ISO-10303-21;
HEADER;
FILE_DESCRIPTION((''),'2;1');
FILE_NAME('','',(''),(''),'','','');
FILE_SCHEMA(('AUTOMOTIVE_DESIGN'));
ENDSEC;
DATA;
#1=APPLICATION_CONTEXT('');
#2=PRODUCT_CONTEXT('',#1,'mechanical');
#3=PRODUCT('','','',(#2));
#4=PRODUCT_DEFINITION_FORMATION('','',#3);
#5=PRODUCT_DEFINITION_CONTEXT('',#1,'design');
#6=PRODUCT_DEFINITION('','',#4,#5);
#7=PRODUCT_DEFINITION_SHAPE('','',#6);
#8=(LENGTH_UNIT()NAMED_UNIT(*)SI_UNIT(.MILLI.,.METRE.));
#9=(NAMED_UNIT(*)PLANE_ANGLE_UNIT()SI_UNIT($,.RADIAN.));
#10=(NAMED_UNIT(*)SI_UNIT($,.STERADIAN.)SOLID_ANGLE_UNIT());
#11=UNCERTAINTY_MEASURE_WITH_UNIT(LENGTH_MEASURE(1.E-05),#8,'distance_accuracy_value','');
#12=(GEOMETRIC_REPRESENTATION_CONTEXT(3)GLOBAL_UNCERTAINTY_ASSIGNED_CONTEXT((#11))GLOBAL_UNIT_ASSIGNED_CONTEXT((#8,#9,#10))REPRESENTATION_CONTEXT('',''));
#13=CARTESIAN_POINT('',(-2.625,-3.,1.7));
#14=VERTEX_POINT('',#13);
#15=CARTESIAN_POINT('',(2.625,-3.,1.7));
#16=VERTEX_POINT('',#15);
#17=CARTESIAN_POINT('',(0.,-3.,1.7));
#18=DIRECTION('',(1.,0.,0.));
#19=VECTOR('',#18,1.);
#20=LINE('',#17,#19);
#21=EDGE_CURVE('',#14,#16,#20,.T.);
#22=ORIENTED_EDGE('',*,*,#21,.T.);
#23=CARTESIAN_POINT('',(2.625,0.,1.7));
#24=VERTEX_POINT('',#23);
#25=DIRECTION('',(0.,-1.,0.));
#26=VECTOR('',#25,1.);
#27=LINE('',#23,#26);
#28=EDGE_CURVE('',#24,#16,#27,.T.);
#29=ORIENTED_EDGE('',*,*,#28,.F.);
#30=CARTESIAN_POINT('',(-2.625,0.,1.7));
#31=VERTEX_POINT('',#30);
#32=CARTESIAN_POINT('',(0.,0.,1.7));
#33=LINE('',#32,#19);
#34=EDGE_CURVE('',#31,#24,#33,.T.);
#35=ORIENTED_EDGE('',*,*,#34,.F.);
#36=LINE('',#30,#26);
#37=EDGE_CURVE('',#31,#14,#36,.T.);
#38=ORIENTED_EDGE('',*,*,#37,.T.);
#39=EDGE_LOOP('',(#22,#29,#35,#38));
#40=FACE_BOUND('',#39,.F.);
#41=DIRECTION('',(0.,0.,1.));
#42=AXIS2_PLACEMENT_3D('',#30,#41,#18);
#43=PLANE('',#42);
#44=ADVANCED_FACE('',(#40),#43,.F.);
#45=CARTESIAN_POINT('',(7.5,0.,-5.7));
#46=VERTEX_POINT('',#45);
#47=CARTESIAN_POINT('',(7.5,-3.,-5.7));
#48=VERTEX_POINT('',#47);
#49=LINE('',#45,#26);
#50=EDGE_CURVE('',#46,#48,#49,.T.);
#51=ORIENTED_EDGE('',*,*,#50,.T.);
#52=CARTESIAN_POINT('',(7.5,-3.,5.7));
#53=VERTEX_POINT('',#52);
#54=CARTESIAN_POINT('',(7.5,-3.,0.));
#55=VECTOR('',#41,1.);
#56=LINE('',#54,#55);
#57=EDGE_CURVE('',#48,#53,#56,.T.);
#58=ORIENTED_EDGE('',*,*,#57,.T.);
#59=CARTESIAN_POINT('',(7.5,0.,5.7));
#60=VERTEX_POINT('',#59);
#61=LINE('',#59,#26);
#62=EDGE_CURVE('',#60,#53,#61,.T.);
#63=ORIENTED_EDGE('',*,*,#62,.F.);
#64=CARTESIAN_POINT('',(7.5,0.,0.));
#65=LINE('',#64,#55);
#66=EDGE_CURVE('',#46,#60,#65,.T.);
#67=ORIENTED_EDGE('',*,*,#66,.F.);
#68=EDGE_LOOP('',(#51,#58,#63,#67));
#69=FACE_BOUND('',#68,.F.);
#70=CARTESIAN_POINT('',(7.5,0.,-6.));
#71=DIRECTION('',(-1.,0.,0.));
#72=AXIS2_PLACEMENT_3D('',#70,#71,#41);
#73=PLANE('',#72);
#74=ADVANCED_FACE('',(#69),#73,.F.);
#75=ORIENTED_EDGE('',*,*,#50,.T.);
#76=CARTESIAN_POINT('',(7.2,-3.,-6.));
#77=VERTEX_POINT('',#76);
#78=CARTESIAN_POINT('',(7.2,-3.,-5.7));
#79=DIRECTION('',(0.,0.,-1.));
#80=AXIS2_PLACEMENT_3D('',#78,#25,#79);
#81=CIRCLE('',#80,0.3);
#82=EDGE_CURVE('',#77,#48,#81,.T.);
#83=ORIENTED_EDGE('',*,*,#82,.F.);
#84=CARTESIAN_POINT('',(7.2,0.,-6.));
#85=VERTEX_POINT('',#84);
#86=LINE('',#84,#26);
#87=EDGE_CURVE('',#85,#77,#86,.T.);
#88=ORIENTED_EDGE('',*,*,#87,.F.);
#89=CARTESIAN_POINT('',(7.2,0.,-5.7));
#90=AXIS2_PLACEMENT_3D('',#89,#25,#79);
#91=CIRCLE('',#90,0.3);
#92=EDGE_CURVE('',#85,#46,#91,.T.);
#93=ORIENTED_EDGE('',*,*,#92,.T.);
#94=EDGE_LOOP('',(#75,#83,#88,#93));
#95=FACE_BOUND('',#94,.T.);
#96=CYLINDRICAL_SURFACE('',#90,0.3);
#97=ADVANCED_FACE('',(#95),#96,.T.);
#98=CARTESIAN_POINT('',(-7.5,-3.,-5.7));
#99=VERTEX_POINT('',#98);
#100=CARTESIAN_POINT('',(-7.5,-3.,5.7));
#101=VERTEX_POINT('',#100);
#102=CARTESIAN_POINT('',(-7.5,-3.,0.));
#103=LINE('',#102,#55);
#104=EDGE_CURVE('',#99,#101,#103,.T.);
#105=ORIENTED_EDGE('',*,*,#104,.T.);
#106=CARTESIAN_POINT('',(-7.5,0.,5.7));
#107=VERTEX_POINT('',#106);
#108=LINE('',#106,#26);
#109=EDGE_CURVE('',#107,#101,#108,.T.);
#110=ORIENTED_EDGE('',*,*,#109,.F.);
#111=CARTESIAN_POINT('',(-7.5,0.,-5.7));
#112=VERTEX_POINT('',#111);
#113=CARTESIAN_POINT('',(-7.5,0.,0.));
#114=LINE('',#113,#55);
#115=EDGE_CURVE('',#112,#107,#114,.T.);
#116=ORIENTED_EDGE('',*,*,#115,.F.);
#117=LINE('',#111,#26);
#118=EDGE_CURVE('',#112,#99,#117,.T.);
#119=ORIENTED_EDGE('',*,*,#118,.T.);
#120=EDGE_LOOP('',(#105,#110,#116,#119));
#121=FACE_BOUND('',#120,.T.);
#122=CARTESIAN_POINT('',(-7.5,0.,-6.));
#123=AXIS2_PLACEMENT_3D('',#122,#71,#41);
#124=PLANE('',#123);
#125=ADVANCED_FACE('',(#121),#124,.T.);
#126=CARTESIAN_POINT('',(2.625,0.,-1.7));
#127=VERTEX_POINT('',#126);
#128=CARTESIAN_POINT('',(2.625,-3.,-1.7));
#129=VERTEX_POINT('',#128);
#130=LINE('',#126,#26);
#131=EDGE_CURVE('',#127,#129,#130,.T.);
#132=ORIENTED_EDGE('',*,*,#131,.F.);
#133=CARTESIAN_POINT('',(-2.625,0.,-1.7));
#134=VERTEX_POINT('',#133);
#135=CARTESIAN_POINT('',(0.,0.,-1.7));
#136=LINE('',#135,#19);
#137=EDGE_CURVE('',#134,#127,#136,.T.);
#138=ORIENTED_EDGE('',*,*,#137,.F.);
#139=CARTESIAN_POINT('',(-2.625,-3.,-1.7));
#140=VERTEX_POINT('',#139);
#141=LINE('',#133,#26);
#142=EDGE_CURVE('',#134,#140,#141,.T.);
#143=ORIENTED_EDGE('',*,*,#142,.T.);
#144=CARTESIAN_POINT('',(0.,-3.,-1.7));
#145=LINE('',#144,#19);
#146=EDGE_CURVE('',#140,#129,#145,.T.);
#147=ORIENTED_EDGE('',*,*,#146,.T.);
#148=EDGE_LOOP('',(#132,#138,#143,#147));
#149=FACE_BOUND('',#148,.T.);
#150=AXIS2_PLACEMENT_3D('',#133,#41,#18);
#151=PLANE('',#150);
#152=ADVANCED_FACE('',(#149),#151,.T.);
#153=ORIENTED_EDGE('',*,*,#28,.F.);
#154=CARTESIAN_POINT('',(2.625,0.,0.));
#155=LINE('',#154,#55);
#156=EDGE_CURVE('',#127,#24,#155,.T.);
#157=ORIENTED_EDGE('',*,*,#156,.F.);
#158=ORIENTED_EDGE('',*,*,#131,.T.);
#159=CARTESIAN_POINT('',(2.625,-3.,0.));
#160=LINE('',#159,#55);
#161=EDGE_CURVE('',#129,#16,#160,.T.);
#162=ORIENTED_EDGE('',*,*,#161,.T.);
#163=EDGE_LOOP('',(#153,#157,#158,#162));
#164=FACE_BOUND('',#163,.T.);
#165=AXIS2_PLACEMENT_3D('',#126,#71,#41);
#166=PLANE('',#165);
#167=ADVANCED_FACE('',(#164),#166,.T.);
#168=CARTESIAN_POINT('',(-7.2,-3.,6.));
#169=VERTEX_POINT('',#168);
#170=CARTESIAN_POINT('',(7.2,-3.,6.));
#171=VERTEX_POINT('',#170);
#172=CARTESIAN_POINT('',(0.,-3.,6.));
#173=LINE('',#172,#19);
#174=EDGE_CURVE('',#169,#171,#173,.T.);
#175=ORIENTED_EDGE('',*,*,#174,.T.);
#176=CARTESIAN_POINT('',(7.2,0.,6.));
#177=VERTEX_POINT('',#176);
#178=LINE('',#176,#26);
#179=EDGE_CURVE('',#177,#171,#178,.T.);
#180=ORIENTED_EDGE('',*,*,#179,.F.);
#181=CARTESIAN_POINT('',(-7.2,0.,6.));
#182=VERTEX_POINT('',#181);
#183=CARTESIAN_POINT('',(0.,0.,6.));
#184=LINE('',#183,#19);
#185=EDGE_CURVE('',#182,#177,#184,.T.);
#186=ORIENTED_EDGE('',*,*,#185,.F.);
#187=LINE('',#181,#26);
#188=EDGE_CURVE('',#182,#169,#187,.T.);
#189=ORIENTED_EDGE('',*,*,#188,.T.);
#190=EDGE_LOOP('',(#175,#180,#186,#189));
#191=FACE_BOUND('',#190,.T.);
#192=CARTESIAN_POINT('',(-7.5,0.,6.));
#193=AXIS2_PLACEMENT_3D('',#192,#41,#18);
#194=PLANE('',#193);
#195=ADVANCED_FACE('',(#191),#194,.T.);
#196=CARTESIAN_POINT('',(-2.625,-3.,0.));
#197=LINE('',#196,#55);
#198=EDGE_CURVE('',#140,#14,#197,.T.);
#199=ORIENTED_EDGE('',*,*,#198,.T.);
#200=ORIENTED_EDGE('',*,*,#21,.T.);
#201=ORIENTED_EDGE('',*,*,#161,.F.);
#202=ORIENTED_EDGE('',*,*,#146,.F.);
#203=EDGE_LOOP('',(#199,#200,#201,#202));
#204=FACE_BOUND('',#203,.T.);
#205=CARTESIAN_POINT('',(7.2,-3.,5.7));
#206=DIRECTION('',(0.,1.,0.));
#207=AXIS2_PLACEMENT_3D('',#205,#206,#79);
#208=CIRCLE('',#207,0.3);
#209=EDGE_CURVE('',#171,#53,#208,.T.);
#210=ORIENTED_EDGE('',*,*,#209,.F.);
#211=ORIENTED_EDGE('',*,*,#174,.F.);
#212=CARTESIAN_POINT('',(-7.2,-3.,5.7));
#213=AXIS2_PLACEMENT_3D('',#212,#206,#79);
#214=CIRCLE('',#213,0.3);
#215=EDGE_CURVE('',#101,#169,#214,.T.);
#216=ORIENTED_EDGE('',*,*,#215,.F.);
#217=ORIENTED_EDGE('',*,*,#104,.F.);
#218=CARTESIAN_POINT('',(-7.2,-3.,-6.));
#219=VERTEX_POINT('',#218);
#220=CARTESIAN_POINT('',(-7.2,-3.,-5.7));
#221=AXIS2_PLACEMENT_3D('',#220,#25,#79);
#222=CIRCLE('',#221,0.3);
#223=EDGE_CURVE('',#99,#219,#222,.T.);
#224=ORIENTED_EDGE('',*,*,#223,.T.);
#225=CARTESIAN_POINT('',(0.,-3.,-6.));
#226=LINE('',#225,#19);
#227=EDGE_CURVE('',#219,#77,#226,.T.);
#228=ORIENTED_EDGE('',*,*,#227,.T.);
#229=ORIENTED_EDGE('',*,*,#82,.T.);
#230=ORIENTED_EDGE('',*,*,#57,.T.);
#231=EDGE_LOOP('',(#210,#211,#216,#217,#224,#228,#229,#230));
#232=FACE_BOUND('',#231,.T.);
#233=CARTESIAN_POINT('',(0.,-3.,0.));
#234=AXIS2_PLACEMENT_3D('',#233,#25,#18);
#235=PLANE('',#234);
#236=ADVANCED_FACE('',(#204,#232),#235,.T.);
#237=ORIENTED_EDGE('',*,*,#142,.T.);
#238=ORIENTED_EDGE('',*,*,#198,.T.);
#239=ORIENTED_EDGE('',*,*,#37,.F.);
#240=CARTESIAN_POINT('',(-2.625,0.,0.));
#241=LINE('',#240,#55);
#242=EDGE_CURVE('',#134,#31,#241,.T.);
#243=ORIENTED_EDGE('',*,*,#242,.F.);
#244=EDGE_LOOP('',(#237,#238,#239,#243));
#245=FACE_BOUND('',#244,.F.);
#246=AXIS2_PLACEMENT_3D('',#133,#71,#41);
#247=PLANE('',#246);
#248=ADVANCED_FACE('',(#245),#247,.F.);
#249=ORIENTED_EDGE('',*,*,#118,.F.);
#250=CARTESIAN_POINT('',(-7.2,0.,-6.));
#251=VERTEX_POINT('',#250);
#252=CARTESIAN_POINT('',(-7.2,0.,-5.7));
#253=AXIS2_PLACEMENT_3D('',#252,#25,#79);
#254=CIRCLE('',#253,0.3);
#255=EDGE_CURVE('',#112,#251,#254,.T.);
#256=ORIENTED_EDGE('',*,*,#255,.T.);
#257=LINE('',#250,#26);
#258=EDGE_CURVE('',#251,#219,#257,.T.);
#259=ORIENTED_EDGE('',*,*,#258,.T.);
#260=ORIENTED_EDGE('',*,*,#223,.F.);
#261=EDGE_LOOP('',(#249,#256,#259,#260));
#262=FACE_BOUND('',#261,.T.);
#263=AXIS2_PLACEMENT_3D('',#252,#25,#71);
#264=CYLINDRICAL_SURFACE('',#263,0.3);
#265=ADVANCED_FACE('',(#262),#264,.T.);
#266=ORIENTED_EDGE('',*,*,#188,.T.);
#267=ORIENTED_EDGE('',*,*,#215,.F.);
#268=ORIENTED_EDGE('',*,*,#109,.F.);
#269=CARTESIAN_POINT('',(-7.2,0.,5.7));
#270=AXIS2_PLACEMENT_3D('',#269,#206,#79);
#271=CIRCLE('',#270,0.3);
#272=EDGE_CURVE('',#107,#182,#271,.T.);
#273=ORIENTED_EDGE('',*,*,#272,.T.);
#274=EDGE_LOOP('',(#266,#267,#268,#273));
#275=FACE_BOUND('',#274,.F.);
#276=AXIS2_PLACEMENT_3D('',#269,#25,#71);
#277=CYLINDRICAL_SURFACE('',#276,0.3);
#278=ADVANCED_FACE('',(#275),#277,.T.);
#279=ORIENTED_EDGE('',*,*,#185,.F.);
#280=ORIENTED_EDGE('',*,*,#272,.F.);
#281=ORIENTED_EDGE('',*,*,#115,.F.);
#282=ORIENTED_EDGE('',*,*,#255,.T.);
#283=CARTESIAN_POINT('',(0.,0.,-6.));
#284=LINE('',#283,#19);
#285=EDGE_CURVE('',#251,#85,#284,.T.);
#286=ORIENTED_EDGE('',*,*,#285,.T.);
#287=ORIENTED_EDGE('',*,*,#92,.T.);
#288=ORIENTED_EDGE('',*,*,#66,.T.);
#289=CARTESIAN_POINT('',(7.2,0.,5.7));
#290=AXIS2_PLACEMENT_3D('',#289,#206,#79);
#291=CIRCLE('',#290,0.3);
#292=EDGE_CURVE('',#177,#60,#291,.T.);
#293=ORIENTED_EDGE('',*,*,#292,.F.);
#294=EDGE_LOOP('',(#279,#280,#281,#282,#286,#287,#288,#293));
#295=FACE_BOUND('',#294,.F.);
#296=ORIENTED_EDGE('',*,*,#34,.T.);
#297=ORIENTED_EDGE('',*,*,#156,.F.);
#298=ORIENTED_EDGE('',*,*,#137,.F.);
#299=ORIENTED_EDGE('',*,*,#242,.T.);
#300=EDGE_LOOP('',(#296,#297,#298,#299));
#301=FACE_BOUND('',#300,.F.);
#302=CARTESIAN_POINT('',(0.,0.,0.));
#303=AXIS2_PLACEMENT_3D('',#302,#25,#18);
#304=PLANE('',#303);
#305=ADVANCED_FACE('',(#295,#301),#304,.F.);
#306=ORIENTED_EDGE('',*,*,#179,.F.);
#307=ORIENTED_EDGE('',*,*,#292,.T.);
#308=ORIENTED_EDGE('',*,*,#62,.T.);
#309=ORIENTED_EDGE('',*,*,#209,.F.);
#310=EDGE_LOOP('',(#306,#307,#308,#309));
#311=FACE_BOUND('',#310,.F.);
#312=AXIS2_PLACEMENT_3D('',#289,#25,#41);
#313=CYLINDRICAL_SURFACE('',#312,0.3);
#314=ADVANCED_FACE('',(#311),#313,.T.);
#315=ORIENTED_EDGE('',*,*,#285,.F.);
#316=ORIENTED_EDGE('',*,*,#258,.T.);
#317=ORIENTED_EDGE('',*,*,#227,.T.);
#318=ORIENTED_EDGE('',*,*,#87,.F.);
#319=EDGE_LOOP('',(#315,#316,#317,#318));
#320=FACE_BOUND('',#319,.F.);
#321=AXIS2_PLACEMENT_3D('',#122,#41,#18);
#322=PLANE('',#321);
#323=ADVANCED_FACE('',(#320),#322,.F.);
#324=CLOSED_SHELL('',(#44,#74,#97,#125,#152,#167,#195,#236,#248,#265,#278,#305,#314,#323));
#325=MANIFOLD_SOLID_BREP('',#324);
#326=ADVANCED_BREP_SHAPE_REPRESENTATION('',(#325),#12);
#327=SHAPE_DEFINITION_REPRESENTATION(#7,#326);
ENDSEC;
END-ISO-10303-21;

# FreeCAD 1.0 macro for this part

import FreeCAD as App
import Part
import Sketcher

V = App.Vector


def edges_at(feature, points):
    """Names of the edges that pass closest to the given points."""
    edges = feature.Shape.Edges
    near = lambda p: min(range(len(edges)), key=lambda i: edges[i].distToShape(Part.Vertex(*p))[0])
    return sorted({f"Edge{near(p) + 1}" for p in points})


def add_polygon(sketch, points):
    """Adds a closed chain of lines whose ends are joined by coincident constraints."""
    first, n = sketch.GeometryCount, len(points)
    for a, b in zip(points, points[1:] + points[:1]):
        sketch.addGeometry(Part.LineSegment(App.Vector(*a, 0), App.Vector(*b, 0)), False)
    for i in range(n):
        sketch.addConstraint(Sketcher.Constraint("Coincident", first + i, 2, first + (i + 1) % n, 1))

doc = App.newDocument("Part")
body = doc.addObject("PartDesign::Body", "Body")

sketch1 = doc.addObject("Sketcher::SketchObject", "Sketch")
body.addObject(sketch1)
sketch1.AttachmentSupport = (doc.XZ_Plane, [""])
sketch1.MapMode = "FlatFace"
add_polygon(sketch1, [(-7.5, 6), (-7.5, -6), (7.5, -6), (7.5, 6)])
add_polygon(sketch1, [(2.625, -1.7), (-2.625, -1.7), (-2.625, 1.7), (2.625, 1.7)])
sketch1.addConstraint(Sketcher.Constraint("Vertical", 0))
sketch1.addConstraint(Sketcher.Constraint("Horizontal", 1))
sketch1.addConstraint(Sketcher.Constraint("Vertical", 2))
sketch1.addConstraint(Sketcher.Constraint("Horizontal", 3))
sketch1.addConstraint(Sketcher.Constraint("Horizontal", 4))
sketch1.addConstraint(Sketcher.Constraint("Vertical", 5))
sketch1.addConstraint(Sketcher.Constraint("Horizontal", 6))
sketch1.addConstraint(Sketcher.Constraint("Vertical", 7))
sketch1.addConstraint(Sketcher.Constraint("Symmetric", 0, 2, 2, 2, -1, 1))
sketch1.addConstraint(Sketcher.Constraint("Symmetric", 4, 2, 6, 2, -1, 1))
sketch1.addConstraint(Sketcher.Constraint("DistanceX", 1, 1, 1, 2, 15.0))
sketch1.addConstraint(Sketcher.Constraint("DistanceY", 0, 2, 0, 1, 12.0))
sketch1.addConstraint(Sketcher.Constraint("DistanceY", 5, 1, 5, 2, 3.4))
sketch1.addConstraint(Sketcher.Constraint("DistanceX", 4, 2, 4, 1, 5.25))
pad1 = doc.addObject("PartDesign::Pad", "Pad")
body.addObject(pad1)
pad1.Profile = sketch1
pad1.Length = 3
doc.recompute()

fillet = doc.addObject("PartDesign::Fillet", "Fillet")
body.addObject(fillet)
fillet.Base = (pad1, edges_at(pad1, [
    (-7.5, -1.5, 6),
    (-7.5, -1.5, -6),
    (7.5, -1.5, 6),
    (7.5, -1.5, -6),
]))
fillet.Radius = 0.3

doc.recompute()
